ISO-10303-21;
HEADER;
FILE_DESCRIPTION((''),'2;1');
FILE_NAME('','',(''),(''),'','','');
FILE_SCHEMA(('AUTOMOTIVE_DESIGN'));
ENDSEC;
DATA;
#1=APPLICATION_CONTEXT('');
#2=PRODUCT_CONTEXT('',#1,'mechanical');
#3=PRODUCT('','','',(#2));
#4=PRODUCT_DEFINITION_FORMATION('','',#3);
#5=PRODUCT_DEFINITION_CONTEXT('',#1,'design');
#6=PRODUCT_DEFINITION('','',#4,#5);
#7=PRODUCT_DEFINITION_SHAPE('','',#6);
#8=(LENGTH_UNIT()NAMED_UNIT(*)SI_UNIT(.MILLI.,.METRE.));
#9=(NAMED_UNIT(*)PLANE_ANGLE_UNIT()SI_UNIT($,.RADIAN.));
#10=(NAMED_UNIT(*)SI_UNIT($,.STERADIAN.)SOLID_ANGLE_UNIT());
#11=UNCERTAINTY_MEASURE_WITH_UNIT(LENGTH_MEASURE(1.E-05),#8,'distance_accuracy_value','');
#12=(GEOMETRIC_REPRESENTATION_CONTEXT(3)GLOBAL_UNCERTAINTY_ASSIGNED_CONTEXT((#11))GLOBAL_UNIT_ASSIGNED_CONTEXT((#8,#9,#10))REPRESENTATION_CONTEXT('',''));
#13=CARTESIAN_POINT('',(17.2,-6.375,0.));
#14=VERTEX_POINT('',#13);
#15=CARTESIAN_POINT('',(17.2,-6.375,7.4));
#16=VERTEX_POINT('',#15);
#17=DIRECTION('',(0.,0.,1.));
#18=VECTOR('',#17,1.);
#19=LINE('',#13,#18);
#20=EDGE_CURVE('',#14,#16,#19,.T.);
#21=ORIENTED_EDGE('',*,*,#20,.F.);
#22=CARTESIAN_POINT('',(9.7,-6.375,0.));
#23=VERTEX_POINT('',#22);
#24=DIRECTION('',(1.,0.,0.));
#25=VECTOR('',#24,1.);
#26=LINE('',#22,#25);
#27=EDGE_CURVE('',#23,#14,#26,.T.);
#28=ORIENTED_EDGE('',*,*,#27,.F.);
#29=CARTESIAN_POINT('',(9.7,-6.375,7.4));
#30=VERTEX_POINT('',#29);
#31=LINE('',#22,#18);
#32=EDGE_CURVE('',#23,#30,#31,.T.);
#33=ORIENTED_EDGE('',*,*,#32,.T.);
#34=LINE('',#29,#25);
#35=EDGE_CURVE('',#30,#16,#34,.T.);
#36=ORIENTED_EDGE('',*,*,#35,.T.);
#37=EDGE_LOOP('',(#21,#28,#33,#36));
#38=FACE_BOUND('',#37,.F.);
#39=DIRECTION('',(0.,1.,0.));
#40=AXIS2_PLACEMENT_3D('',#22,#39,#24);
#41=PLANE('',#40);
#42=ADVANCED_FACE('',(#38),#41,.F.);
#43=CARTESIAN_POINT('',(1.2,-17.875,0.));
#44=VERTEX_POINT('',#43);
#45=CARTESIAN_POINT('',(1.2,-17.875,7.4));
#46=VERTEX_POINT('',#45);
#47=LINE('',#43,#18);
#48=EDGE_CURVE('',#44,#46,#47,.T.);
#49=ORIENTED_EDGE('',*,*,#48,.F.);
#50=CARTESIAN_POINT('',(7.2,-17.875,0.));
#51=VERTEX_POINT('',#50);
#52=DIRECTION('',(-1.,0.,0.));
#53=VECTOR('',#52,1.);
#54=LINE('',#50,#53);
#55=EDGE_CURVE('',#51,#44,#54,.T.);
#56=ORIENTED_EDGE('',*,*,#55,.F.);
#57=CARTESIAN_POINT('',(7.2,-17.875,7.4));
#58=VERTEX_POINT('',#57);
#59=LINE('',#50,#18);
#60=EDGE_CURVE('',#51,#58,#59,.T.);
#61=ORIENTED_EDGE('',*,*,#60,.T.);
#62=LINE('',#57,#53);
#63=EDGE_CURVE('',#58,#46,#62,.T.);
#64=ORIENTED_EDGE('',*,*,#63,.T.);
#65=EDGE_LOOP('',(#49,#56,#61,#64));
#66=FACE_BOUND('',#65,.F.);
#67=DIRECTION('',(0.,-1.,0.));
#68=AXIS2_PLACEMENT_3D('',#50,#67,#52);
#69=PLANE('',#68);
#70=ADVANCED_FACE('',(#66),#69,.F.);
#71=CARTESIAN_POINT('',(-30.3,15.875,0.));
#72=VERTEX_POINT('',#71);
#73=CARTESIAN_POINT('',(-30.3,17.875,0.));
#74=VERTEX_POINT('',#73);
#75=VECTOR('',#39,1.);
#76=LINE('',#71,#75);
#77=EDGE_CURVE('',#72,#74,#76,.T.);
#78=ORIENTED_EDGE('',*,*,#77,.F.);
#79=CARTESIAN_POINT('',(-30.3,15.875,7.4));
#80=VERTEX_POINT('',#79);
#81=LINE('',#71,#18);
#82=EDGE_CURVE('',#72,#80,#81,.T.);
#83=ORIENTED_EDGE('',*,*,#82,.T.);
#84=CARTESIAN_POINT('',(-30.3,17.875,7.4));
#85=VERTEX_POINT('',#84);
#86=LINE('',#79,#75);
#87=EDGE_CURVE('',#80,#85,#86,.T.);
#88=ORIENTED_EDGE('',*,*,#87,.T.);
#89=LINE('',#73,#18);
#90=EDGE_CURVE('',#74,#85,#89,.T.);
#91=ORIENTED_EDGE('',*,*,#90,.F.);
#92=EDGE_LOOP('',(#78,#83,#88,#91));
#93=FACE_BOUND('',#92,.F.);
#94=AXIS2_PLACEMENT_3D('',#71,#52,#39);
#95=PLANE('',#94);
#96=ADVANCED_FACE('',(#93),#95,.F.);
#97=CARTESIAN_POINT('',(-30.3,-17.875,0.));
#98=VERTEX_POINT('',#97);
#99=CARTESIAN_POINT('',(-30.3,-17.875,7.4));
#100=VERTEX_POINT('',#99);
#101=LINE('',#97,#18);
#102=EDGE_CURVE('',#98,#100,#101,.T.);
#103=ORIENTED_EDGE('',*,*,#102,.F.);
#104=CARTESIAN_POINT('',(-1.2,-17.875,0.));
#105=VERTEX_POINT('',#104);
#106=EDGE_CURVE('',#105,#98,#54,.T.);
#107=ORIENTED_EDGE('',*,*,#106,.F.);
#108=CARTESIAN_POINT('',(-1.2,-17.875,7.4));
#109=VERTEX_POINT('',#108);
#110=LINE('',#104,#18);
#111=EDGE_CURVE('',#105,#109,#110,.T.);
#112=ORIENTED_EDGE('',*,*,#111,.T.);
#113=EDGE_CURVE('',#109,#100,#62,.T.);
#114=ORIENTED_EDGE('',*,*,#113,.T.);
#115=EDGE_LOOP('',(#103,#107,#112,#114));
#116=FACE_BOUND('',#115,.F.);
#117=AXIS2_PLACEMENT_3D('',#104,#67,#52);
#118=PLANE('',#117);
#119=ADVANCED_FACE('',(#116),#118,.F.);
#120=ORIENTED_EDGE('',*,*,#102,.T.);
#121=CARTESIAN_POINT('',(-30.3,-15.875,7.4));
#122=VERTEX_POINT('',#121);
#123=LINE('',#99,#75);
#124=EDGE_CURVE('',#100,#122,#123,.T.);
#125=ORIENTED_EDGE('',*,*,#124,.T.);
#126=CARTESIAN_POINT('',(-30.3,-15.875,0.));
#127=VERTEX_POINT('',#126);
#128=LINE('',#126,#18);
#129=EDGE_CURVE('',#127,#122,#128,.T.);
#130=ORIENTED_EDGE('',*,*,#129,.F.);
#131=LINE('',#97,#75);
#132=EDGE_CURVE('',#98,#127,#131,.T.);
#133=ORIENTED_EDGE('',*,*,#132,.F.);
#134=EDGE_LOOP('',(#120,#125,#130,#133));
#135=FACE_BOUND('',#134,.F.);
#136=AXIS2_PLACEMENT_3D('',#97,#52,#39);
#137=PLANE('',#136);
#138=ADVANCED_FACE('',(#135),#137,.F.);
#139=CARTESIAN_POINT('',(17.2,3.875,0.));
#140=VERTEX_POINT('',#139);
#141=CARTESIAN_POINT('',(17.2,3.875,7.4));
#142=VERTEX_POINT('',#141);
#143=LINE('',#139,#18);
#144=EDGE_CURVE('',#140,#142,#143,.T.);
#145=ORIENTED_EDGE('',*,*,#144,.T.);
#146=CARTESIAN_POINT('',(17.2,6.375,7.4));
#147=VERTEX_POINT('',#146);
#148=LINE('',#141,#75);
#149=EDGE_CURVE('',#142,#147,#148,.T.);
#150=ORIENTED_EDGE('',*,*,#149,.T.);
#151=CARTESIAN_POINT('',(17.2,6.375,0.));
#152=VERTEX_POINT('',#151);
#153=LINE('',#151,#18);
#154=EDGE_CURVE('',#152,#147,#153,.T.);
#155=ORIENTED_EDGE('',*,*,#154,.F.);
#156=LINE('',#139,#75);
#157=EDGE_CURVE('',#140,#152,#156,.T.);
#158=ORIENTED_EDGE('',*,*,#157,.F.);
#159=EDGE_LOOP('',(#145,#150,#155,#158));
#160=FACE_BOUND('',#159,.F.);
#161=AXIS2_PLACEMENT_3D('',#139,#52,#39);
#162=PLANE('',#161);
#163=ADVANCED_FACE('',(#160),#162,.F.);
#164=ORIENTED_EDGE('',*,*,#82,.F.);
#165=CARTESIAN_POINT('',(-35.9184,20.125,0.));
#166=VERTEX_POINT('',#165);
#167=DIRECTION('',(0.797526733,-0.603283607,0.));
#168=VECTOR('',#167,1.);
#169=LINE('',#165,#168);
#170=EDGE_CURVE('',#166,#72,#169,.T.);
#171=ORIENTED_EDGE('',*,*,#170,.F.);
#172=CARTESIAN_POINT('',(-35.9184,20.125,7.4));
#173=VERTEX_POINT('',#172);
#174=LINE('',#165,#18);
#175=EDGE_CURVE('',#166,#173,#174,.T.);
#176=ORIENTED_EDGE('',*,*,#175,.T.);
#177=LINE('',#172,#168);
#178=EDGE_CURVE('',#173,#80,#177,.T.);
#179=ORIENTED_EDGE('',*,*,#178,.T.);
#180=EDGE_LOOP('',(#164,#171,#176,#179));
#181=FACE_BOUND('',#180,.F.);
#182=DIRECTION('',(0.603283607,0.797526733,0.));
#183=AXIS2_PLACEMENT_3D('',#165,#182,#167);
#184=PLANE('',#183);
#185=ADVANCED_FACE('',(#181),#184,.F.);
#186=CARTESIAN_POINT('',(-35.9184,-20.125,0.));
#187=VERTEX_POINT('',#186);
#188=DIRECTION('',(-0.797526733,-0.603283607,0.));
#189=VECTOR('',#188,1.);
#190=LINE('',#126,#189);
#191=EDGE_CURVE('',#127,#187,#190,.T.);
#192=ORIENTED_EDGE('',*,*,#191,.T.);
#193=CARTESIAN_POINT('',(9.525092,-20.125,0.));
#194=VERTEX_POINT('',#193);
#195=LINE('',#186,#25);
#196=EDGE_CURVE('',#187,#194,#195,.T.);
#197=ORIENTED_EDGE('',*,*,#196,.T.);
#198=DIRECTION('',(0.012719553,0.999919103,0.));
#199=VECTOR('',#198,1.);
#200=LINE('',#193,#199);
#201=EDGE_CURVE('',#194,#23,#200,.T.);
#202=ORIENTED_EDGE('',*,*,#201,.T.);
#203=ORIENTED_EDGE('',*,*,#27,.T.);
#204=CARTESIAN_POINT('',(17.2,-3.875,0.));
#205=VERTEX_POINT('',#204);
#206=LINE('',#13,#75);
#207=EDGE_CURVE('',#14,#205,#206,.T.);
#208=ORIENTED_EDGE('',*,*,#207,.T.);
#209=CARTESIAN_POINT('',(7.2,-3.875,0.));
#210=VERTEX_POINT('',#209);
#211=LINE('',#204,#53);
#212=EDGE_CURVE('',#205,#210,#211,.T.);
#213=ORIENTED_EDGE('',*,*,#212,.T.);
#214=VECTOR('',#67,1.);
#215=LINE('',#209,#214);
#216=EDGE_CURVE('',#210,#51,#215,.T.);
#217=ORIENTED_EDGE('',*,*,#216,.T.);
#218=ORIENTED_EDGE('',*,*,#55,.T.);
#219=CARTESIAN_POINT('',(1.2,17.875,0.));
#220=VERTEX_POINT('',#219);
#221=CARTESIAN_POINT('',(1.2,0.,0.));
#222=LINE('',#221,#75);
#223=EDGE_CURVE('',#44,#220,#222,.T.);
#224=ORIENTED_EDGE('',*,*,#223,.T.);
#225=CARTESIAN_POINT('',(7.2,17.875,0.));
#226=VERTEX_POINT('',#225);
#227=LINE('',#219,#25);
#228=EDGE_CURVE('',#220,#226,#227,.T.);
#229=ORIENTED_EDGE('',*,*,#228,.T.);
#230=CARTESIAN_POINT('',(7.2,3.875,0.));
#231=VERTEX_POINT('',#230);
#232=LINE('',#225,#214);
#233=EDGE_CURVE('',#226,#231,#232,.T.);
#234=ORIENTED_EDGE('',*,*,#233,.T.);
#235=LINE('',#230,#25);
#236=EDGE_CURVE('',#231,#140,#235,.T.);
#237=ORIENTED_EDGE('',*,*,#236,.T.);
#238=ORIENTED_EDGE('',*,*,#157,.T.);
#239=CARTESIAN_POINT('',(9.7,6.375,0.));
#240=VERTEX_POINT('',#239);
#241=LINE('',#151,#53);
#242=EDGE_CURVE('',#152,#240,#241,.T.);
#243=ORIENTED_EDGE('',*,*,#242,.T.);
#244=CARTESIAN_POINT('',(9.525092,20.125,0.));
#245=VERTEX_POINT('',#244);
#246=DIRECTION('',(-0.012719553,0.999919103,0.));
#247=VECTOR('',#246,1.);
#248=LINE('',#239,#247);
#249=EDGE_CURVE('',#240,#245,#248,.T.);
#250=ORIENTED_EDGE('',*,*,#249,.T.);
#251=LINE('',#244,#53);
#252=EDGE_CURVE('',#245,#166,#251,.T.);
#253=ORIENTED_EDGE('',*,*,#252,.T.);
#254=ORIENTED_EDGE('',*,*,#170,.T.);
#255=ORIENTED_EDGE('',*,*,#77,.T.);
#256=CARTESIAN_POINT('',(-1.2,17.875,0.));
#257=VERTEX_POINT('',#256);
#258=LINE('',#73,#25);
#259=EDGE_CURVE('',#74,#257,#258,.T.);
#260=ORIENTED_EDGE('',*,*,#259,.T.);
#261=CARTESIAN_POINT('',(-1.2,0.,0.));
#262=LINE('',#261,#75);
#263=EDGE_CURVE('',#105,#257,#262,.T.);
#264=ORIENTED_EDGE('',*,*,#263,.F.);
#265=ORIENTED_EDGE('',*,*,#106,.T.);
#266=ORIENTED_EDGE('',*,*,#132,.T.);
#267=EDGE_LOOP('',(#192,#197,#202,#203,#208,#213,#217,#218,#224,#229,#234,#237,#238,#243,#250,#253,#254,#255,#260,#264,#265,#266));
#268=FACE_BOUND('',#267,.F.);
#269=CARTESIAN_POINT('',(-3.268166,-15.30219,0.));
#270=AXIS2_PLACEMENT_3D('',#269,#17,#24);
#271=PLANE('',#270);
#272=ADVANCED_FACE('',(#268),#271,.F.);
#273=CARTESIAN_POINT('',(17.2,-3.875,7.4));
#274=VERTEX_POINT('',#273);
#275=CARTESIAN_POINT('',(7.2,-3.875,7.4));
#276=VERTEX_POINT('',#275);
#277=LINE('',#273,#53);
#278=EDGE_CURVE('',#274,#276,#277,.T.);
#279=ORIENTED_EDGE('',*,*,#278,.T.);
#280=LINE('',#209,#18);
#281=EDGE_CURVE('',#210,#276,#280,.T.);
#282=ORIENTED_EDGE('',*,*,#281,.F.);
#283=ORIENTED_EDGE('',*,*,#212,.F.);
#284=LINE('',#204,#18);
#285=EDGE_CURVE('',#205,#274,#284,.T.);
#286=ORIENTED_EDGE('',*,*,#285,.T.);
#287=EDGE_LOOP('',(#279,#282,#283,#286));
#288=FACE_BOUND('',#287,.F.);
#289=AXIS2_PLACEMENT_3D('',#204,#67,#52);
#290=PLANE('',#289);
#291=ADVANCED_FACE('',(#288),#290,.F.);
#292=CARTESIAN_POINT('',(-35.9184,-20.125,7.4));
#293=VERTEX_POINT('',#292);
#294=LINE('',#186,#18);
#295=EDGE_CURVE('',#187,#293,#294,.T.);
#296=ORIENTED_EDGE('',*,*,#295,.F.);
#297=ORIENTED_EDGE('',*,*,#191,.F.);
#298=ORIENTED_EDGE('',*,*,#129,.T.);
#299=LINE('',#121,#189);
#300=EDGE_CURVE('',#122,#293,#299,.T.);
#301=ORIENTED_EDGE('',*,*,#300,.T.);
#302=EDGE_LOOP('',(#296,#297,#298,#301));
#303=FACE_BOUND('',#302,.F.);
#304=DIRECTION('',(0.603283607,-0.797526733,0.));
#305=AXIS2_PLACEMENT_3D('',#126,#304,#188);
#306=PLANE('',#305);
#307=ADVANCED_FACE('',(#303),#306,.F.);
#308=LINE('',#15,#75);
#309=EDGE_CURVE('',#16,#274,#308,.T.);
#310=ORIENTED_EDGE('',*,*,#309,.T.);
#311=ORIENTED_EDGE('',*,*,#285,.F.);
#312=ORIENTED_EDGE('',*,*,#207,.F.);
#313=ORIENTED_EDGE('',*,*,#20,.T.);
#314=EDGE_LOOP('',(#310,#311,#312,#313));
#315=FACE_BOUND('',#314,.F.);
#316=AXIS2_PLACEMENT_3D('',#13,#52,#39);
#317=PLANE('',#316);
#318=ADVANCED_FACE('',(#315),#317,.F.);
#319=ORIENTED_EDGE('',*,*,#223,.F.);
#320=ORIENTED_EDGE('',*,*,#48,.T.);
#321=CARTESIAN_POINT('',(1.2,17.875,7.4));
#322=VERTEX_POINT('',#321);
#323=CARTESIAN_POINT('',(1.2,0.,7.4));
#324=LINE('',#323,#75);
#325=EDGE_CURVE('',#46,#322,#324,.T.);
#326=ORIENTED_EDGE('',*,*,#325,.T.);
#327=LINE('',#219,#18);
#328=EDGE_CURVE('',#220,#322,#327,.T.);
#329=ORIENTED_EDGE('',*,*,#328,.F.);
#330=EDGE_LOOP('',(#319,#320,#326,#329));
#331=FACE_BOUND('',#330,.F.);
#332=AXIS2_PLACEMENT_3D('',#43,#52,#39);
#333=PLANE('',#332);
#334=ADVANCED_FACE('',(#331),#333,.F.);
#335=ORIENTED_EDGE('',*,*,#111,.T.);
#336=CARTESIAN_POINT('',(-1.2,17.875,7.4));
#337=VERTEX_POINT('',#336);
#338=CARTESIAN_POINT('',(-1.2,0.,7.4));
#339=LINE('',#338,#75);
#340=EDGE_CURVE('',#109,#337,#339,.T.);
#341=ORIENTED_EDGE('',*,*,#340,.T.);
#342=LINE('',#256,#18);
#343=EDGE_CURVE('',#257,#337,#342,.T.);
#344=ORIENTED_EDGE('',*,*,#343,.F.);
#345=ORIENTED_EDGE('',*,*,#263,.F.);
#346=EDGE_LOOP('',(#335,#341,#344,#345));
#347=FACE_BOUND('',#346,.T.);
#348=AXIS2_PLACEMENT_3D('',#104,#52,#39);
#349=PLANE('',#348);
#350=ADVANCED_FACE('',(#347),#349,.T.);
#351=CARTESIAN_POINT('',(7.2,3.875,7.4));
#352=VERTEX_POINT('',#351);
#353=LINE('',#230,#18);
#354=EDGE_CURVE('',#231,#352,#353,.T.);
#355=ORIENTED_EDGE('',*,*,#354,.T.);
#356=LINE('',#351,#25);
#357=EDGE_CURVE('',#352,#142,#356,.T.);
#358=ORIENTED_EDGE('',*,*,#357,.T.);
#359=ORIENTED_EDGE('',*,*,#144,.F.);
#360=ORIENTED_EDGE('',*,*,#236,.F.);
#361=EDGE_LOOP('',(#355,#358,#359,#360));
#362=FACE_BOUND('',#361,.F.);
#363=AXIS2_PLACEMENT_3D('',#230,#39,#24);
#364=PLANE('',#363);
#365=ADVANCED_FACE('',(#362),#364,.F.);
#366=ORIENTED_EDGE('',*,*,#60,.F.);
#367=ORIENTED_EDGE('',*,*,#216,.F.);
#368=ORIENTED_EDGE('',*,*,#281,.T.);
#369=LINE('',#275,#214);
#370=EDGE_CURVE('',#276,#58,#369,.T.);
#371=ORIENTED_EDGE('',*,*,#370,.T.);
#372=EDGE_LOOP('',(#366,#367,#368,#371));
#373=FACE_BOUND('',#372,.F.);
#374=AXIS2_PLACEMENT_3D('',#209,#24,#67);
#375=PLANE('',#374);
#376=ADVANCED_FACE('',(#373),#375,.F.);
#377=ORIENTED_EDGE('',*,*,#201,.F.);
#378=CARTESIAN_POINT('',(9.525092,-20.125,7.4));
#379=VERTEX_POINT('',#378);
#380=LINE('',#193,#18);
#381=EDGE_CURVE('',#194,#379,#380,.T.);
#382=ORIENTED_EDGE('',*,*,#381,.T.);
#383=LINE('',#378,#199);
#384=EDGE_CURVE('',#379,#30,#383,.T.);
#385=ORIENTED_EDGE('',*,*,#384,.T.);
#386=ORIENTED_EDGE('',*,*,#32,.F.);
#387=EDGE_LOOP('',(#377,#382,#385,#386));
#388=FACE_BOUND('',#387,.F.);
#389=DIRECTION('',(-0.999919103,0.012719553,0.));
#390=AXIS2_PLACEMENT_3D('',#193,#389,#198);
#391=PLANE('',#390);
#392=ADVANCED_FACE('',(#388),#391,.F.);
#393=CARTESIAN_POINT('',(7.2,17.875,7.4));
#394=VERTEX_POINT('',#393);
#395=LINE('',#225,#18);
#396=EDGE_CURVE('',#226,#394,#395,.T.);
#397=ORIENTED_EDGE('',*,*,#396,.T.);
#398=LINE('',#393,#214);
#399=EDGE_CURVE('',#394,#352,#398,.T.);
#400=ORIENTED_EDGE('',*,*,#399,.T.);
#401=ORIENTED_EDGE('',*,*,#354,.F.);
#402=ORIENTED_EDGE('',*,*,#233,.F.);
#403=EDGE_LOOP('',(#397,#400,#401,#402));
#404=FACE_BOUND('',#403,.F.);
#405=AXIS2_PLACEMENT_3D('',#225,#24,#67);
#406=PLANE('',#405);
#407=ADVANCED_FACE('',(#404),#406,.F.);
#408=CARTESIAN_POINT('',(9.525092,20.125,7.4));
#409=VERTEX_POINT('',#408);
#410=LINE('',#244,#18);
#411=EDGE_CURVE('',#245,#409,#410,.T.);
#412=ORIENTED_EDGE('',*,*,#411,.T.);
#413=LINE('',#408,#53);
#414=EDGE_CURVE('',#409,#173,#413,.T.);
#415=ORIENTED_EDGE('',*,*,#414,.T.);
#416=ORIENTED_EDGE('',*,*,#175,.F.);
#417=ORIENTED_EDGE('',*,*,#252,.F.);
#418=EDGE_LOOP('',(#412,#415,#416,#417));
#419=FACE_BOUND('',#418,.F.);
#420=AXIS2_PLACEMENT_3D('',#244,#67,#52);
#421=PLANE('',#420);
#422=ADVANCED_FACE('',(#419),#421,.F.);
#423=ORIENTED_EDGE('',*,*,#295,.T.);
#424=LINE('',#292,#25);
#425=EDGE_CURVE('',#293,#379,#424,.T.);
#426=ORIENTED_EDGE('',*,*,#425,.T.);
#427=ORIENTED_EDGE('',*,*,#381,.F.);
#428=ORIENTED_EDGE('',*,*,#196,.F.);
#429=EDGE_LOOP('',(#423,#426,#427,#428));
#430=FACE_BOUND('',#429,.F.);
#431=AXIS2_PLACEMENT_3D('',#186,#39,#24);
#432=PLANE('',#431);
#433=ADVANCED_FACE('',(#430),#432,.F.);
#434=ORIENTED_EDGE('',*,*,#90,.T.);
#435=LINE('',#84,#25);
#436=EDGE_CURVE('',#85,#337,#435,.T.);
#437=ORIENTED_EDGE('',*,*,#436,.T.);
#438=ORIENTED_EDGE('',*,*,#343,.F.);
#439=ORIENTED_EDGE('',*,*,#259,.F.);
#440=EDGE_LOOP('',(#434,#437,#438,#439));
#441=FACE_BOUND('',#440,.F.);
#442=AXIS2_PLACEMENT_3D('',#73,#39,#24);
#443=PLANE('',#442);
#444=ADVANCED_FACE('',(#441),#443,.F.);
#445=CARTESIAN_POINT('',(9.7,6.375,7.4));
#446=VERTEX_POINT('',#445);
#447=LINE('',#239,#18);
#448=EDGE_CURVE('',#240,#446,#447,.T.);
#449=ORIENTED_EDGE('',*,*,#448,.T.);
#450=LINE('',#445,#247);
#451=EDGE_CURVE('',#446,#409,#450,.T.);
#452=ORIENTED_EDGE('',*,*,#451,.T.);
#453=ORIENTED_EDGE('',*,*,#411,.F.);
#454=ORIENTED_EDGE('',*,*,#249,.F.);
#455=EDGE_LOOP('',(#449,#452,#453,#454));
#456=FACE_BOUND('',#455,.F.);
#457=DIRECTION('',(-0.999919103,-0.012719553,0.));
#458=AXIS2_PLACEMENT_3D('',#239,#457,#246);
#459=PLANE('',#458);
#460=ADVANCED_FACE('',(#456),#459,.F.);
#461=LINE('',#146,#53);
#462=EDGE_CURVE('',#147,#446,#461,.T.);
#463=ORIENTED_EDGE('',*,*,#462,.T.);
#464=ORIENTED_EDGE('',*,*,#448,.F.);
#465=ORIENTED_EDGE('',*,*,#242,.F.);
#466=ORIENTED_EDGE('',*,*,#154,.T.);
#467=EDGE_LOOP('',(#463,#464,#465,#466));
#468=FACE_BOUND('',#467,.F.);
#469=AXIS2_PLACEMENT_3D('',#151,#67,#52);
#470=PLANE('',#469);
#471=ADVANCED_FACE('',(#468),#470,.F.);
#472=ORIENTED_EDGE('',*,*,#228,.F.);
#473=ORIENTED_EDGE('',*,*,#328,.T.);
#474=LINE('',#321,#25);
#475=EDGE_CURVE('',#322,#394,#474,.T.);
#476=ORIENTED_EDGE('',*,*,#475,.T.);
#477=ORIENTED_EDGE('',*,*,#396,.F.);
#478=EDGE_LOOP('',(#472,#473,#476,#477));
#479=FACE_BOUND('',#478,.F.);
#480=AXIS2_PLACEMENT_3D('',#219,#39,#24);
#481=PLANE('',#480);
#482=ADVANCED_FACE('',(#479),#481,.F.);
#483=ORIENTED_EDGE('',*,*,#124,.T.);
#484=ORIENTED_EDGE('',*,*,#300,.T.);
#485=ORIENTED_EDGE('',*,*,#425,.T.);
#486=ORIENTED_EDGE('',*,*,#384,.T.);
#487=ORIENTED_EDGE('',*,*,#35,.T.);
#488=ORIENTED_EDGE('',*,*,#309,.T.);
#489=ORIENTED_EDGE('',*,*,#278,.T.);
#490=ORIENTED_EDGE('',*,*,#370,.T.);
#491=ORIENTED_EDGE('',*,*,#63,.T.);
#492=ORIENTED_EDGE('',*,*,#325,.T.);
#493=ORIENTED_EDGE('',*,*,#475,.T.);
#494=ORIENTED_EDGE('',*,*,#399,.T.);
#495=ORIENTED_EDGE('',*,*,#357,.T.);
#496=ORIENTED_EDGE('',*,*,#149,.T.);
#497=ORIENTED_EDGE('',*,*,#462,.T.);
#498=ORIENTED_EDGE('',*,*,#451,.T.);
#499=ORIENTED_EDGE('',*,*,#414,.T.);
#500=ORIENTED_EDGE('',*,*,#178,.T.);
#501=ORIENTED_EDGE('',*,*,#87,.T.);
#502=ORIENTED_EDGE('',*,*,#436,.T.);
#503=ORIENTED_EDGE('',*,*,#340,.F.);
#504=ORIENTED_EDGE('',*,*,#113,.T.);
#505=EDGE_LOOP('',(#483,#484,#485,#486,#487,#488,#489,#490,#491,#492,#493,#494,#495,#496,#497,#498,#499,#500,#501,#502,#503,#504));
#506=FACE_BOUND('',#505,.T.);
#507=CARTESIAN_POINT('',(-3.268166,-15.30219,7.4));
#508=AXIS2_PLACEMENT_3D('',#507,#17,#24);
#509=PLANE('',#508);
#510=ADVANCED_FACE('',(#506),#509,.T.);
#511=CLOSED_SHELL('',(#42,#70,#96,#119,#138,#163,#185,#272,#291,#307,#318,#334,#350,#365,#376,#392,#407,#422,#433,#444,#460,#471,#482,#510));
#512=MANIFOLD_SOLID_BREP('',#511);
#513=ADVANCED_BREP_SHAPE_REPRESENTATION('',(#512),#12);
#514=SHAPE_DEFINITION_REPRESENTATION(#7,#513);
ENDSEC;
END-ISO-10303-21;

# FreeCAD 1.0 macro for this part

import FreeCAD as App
import Part
import Sketcher
from FreeCAD import Vector
Q = App.Units.Quantity


def add_polygon(sketch, points):
    """Adds a closed chain of lines whose ends are joined by coincident constraints."""
    first, n = sketch.GeometryCount, len(points)
    for a, b in zip(points, points[1:] + points[:1]):
        sketch.addGeometry(Part.LineSegment(App.Vector(*a, 0), App.Vector(*b, 0)), False)
    for i in range(n):
        sketch.addConstraint(Sketcher.Constraint("Coincident", first + i, 2, first + (i + 1) % n, 1))

doc = App.newDocument("Part")
body = doc.addObject("PartDesign::Body", "Body")

# Sketch on XY plane
sketch1 = body.newObject("Sketcher::SketchObject", "Sketch")
sketch1.AttachmentSupport = (doc.getObject("XY_Plane"), [""])
sketch1.MapMode = "FlatFace"
add_polygon(sketch1, [(9.525092, -20.125), (9.7, -6.375), (17.2, -6.375), (17.2, -3.875), (7.2, -3.875), (7.2, -17.875), (1.2, -17.875), (1.2, 17.875), (7.2, 17.875), (7.2, 3.875), (17.2, 3.875), (17.2, 6.375), (9.7, 6.375), (9.525092, 20.125), (-35.9184, 20.125), (-30.3, 15.875), (-30.3, 17.875), (-1.2, 17.875), (-1.2, -17.875), (-30.3, -17.875), (-30.3, -15.875), (-35.9184, -20.125)])  # lines 0-21
sketch1.addConstraint([
    Sketcher.Constraint("Horizontal", 1),
    Sketcher.Constraint("Vertical", 2),
    Sketcher.Constraint("Horizontal", 3),
    Sketcher.Constraint("Vertical", 4),
    Sketcher.Constraint("Horizontal", 5),
    Sketcher.Constraint("Vertical", 6),
    Sketcher.Constraint("Horizontal", 7),
    Sketcher.Constraint("Vertical", 8),
    Sketcher.Constraint("Horizontal", 9),
    Sketcher.Constraint("Vertical", 10),
    Sketcher.Constraint("Horizontal", 11),
    Sketcher.Constraint("Horizontal", 13),
    Sketcher.Constraint("Vertical", 15),
    Sketcher.Constraint("Horizontal", 16),
    Sketcher.Constraint("Vertical", 17),
    Sketcher.Constraint("Horizontal", 18),
    Sketcher.Constraint("Vertical", 19),
    Sketcher.Constraint("Horizontal", 21),
    Sketcher.Constraint("Symmetric", 5, 2, 16, 2, -1, 1),
    Sketcher.Constraint("Symmetric", 4, 2, 7, 2, -1),
    Sketcher.Constraint("Symmetric", 2, 2, 9, 2, -1),
    Sketcher.Constraint("Symmetric", 0, 2, 11, 2, -1),
    Sketcher.Constraint("Symmetric", 15, 2, 18, 2, -1),
    Sketcher.Constraint("Symmetric", 13, 2, 20, 2, -1),
    Sketcher.Constraint("Vertical", 12, 2, 21, 2),
    Sketcher.Constraint("Equal", 15, 19),
    Sketcher.Constraint("DistanceX", 3, 2, 3, 1, Q("10 mm")),
    Sketcher.Constraint("DistanceX", 5, 2, 5, 1, Q("6 mm")),
    Sketcher.Constraint("DistanceY", 4, 2, 4, 1, Q("14 mm")),
    Sketcher.Constraint("DistanceY", 15, 1, 15, 2, Q("2 mm")),
    Sketcher.Constraint("DistanceX", 1, 1, 1, 2, Q("7.5 mm")),
    Sketcher.Constraint("DistanceX", 16, 1, 16, 2, Q("29.1 mm")),
    Sketcher.Constraint("DistanceY", 2, 1, 2, 2, Q("2.5 mm")),
    Sketcher.Constraint("DistanceY", 20, 2, 14, 2, Q("36 mm")),
    Sketcher.Constraint("DistanceY", 6, 1, 6, 2, Q("35.75 mm")),
    Sketcher.Constraint("DistanceX", -1, 1, 0, 2, Q("9.7 mm")),
    Sketcher.Constraint("DistanceX", 13, 2, -1, 1, Q("35.9184 mm")),
    Sketcher.Constraint("DistanceX", 13, 2, 13, 1, Q("45.443492 mm")),
])
pad1 = body.newObject("PartDesign::Pad", "Pad")
pad1.Profile = sketch1
pad1.Length = 7.4

doc.recompute()
